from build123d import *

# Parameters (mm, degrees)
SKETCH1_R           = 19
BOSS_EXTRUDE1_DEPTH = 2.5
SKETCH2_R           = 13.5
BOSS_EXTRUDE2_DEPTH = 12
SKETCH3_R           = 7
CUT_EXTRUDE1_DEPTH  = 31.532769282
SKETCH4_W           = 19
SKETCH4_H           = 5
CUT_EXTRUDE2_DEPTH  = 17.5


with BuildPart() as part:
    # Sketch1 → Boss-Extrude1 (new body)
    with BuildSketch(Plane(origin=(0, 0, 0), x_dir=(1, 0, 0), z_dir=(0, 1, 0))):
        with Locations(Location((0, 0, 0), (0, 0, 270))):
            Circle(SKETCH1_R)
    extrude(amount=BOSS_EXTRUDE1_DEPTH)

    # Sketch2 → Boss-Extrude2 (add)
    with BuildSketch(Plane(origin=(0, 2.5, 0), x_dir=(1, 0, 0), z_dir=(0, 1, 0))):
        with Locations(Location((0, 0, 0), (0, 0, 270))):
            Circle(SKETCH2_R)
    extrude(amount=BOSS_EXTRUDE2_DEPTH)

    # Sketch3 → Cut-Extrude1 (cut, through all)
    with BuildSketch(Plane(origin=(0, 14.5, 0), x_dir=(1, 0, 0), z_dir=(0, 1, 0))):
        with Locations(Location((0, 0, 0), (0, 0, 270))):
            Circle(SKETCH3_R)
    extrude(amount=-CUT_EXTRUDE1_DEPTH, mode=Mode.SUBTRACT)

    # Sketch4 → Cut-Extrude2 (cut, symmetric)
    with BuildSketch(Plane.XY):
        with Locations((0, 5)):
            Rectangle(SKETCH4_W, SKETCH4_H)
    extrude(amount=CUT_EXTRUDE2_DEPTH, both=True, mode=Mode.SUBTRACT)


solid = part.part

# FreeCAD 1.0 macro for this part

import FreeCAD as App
import Part
import Sketcher

V = App.Vector


def add_polygon(sketch, points):
    """Adds a closed chain of lines whose ends are joined by coincident constraints."""
    first, n = sketch.GeometryCount, len(points)
    for a, b in zip(points, points[1:] + points[:1]):
        sketch.addGeometry(Part.LineSegment(App.Vector(*a, 0), App.Vector(*b, 0)), False)
    for i in range(n):
        sketch.addConstraint(Sketcher.Constraint("Coincident", first + i, 2, first + (i + 1) % n, 1))

doc = App.newDocument("Part")
body = doc.addObject("PartDesign::Body", "Body")

sketch1 = doc.addObject("Sketcher::SketchObject", "Sketch")
body.addObject(sketch1)
sketch1.AttachmentSupport = (doc.XZ_Plane, [""])
sketch1.MapMode = "FlatFace"
sketch1.addGeometry(Part.Circle(V(0, 0, 0), V(0, 0, 1), 19), False)
sketch1.addConstraint([
    Sketcher.Constraint("Coincident", 0, 3, -1, 1),
    Sketcher.Constraint("Diameter", 0, 38.0),
])
pad1 = doc.addObject("PartDesign::Pad", "Pad")
body.addObject(pad1)
pad1.Profile = sketch1
pad1.Length = 2.5
pad1.Reversed = True

sketch2 = doc.addObject("Sketcher::SketchObject", "Sketch001")
body.addObject(sketch2)
sketch2.AttachmentSupport = (doc.XZ_Plane, [""])
sketch2.MapMode = "FlatFace"
sketch2.AttachmentOffset = App.Placement(V(0, 0, -2.5), App.Rotation())
sketch2.addGeometry(Part.Circle(V(0, 0, 0), V(0, 0, 1), 13.5), False)
sketch2.addConstraint([
    Sketcher.Constraint("Coincident", 0, 3, -1, 1),
    Sketcher.Constraint("Diameter", 0, 27.0),
])
pad2 = doc.addObject("PartDesign::Pad", "Pad001")
body.addObject(pad2)
pad2.Profile = sketch2
pad2.Length = 12
pad2.Reversed = True

sketch3 = doc.addObject("Sketcher::SketchObject", "Sketch002")
body.addObject(sketch3)
sketch3.AttachmentSupport = (doc.XZ_Plane, [""])
sketch3.MapMode = "FlatFace"
sketch3.AttachmentOffset = App.Placement(V(0, 0, -14.5), App.Rotation())
sketch3.addGeometry(Part.Circle(V(0, 0, 0), V(0, 0, 1), 7), False)
sketch3.addConstraint([
    Sketcher.Constraint("Coincident", 0, 3, -1, 1),
    Sketcher.Constraint("Diameter", 0, 14.0),
])
pocket1 = doc.addObject("PartDesign::Pocket", "Pocket")
body.addObject(pocket1)
pocket1.Profile = sketch3
pocket1.Type = "ThroughAll"
pocket1.Reversed = True

sketch4 = doc.addObject("Sketcher::SketchObject", "Sketch003")
body.addObject(sketch4)
sketch4.AttachmentSupport = (doc.XY_Plane, [""])
sketch4.MapMode = "FlatFace"
add_polygon(sketch4, [(-9.5, 7.5), (-9.5, 2.5), (9.5, 2.5), (9.5, 7.5)])
sketch4.addConstraint([
    Sketcher.Constraint("Vertical", 0),
    Sketcher.Constraint("Horizontal", 1),
    Sketcher.Constraint("Vertical", 2),
    Sketcher.Constraint("Horizontal", 3),
    Sketcher.Constraint("DistanceX", 1, 1, 1, 2, 19.0),
    Sketcher.Constraint("DistanceY", 0, 2, 0, 1, 5.0),
    Sketcher.Constraint("DistanceX", 0, 2, -1, 1, 9.5),
    Sketcher.Constraint("DistanceY", -1, 1, 0, 2, 2.5),
])
pocket2 = doc.addObject("PartDesign::Pocket", "Pocket001")
body.addObject(pocket2)
pocket2.Profile = sketch4
pocket2.Length = 35
pocket2.Midplane = True

doc.recompute()
